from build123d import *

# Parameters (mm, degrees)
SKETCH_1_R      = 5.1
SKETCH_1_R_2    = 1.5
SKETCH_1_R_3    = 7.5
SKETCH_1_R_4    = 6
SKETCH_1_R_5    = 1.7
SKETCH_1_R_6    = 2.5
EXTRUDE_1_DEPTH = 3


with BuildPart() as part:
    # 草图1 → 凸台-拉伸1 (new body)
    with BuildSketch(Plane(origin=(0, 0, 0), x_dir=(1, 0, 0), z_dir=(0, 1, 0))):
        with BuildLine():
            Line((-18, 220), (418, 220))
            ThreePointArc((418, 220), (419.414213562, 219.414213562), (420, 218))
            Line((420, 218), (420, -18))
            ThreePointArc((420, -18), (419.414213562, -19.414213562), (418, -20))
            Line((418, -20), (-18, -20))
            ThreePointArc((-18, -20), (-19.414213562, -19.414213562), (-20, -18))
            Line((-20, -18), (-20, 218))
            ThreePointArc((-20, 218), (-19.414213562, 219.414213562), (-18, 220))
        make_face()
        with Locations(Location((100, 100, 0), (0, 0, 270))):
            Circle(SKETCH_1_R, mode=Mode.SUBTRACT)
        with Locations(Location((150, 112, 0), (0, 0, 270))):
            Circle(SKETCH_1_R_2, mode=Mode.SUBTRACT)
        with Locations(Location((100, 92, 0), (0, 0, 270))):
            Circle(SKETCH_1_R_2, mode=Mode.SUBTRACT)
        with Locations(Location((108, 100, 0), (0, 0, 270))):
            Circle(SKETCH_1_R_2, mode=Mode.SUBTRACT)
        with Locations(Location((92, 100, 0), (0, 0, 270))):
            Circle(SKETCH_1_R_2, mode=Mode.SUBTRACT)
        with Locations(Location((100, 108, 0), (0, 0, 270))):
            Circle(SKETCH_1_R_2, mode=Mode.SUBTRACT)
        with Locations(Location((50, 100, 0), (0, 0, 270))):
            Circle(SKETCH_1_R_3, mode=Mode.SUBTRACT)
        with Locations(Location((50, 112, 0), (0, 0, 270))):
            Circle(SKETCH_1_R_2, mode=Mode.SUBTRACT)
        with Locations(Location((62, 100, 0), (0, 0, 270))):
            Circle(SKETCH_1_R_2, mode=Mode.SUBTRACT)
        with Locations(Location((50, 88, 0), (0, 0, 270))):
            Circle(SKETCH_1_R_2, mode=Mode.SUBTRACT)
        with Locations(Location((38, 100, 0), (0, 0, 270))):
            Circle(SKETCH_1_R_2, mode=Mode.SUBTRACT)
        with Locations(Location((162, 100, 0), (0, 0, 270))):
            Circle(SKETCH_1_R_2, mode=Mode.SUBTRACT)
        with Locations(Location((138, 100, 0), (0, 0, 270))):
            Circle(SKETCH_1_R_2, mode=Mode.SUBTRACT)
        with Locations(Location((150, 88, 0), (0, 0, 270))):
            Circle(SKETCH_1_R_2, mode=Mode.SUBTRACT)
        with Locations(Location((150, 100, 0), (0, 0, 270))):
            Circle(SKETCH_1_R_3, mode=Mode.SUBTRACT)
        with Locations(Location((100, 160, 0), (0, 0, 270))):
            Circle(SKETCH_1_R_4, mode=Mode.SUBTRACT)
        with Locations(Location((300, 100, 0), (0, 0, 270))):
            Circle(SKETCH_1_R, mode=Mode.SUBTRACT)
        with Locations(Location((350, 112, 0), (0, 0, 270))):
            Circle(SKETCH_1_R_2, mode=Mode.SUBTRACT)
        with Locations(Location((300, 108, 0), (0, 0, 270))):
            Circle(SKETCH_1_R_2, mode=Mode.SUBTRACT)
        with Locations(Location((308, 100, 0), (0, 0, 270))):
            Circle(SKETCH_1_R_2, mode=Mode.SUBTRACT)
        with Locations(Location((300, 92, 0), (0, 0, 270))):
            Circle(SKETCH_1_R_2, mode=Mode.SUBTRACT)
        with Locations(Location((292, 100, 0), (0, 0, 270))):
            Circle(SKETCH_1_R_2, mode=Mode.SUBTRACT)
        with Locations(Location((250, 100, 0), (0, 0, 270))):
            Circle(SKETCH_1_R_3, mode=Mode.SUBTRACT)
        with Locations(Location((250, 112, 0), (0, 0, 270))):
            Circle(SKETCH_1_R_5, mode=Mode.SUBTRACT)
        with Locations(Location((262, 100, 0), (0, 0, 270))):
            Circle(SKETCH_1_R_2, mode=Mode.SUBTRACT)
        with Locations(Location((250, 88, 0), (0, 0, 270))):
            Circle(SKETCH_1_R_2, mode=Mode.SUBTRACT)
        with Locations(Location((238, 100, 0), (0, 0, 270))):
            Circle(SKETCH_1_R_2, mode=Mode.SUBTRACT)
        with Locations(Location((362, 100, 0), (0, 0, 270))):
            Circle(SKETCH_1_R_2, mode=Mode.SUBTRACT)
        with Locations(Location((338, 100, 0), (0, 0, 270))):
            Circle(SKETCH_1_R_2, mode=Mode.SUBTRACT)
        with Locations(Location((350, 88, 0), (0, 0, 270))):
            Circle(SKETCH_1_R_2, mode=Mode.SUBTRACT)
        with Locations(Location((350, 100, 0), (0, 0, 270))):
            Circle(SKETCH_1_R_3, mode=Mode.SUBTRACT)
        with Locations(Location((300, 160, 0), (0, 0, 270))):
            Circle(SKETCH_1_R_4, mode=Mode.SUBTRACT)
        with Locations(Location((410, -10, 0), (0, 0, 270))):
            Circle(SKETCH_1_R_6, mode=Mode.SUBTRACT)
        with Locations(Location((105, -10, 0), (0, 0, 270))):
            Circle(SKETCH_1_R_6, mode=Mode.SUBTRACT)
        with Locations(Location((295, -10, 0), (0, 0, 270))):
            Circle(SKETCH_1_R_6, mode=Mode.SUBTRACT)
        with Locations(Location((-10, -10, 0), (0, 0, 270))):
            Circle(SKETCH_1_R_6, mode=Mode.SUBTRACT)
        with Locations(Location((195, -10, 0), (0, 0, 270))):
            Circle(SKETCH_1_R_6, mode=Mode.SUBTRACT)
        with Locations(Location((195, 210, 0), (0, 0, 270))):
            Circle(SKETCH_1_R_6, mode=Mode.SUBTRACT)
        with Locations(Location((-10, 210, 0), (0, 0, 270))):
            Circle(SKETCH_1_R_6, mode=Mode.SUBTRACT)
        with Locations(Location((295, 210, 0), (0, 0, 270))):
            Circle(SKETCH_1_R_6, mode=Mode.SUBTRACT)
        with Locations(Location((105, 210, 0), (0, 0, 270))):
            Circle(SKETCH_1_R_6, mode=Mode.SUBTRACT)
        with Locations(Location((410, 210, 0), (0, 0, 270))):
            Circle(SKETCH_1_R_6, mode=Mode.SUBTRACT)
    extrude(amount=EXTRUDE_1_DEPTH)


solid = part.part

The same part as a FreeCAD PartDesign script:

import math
import FreeCAD as App
import Part
import Sketcher

V = App.Vector
Q = App.Units.Quantity

doc = App.newDocument("Part")
body = doc.addObject("PartDesign::Body", "Body")

# Sketch on XZ plane
sketch1 = body.newObject("Sketcher::SketchObject", "Sketch")
sketch1.AttachmentSupport = (doc.getObject("XZ_Plane"), [""])
sketch1.MapMode = "FlatFace"
sketch1.addGeometry([
    Part.LineSegment(V(418, -220, 0), V(-18, -220, 0)),  # 0
    Part.ArcOfCircle(Part.Circle(V(-18, -218, 0), V(0, 0, 1), 2), math.radians(-180), math.radians(-90)),  # 1
    Part.LineSegment(V(-20, -218, 0), V(-20, 18, 0)),  # 2
    Part.ArcOfCircle(Part.Circle(V(-18, 18, 0), V(0, 0, 1), 2), math.radians(90), math.radians(180)),  # 3
    Part.LineSegment(V(-18, 20, 0), V(418, 20, 0)),  # 4
    Part.ArcOfCircle(Part.Circle(V(418, 18, 0), V(0, 0, 1), 2), math.radians(0), math.radians(90)),  # 5
    Part.LineSegment(V(420, 18, 0), V(420, -218, 0)),  # 6
    Part.ArcOfCircle(Part.Circle(V(418, -218, 0), V(0, 0, 1), 2), math.radians(-90), math.radians(0)),  # 7
    Part.Circle(V(410, 10, 0), V(0, 0, 1), 2.5),  # 8
    Part.Circle(V(295, 10, 0), V(0, 0, 1), 2.5),  # 9
    Part.Circle(V(350, -88, 0), V(0, 0, 1), 1.5),  # 10
    Part.Circle(V(300, -92, 0), V(0, 0, 1), 1.5),  # 11
    Part.Circle(V(250, -88, 0), V(0, 0, 1), 1.5),  # 12
    Part.Circle(V(195, 10, 0), V(0, 0, 1), 2.5),  # 13
    Part.Circle(V(105, 10, 0), V(0, 0, 1), 2.5),  # 14
    Part.Circle(V(-10, 10, 0), V(0, 0, 1), 2.5),  # 15
    Part.Circle(V(150, -88, 0), V(0, 0, 1), 1.5),  # 16
    Part.Circle(V(100, -92, 0), V(0, 0, 1), 1.5),  # 17
    Part.Circle(V(50, -88, 0), V(0, 0, 1), 1.5),  # 18
    Part.Circle(V(362, -100, 0), V(0, 0, 1), 1.5),  # 19
    Part.Circle(V(350, -100, 0), V(0, 0, 1), 7.5),  # 20
    Part.Circle(V(338, -100, 0), V(0, 0, 1), 1.5),  # 21
    Part.Circle(V(350, -112, 0), V(0, 0, 1), 1.5),  # 22
    Part.Circle(V(308, -100, 0), V(0, 0, 1), 1.5),  # 23
    Part.Circle(V(300, -100, 0), V(0, 0, 1), 5.1),  # 24
    Part.Circle(V(292, -100, 0), V(0, 0, 1), 1.5),  # 25
    Part.Circle(V(300, -108, 0), V(0, 0, 1), 1.5),  # 26
    Part.Circle(V(262, -100, 0), V(0, 0, 1), 1.5),  # 27
    Part.Circle(V(250, -100, 0), V(0, 0, 1), 7.5),  # 28
    Part.Circle(V(238, -100, 0), V(0, 0, 1), 1.5),  # 29
    Part.Circle(V(250, -112, 0), V(0, 0, 1), 1.7),  # 30
    Part.Circle(V(410, -210, 0), V(0, 0, 1), 2.5),  # 31
    Part.Circle(V(300, -160, 0), V(0, 0, 1), 6),  # 32
    Part.Circle(V(295, -210, 0), V(0, 0, 1), 2.5),  # 33
    Part.Circle(V(162, -100, 0), V(0, 0, 1), 1.5),  # 34
    Part.Circle(V(150, -100, 0), V(0, 0, 1), 7.5),  # 35
    Part.Circle(V(150, -112, 0), V(0, 0, 1), 1.5),  # 36
    Part.Circle(V(138, -100, 0), V(0, 0, 1), 1.5),  # 37
    Part.Circle(V(108, -100, 0), V(0, 0, 1), 1.5),  # 38
    Part.Circle(V(100, -100, 0), V(0, 0, 1), 5.1),  # 39
    Part.Circle(V(100, -108, 0), V(0, 0, 1), 1.5),  # 40
    Part.Circle(V(92, -100, 0), V(0, 0, 1), 1.5),  # 41
    Part.Circle(V(62, -100, 0), V(0, 0, 1), 1.5),  # 42
    Part.Circle(V(50, -100, 0), V(0, 0, 1), 7.5),  # 43
    Part.Circle(V(50, -112, 0), V(0, 0, 1), 1.5),  # 44
    Part.Circle(V(38, -100, 0), V(0, 0, 1), 1.5),  # 45
    Part.Circle(V(100, -160, 0), V(0, 0, 1), 6),  # 46
    Part.Circle(V(195, -210, 0), V(0, 0, 1), 2.5),  # 47
    Part.Circle(V(105, -210, 0), V(0, 0, 1), 2.5),  # 48
    Part.Circle(V(-10, -210, 0), V(0, 0, 1), 2.5),  # 49
], False)
sketch1.addConstraint([
    Sketcher.Constraint("Tangent", 0, 2, 1, 2),
    Sketcher.Constraint("Tangent", 1, 1, 2, 1),
    Sketcher.Constraint("Tangent", 2, 2, 3, 2),
    Sketcher.Constraint("Tangent", 3, 1, 4, 1),
    Sketcher.Constraint("Tangent", 4, 2, 5, 2),
    Sketcher.Constraint("Tangent", 5, 1, 6, 1),
    Sketcher.Constraint("Tangent", 6, 2, 7, 2),
    Sketcher.Constraint("Tangent", 7, 1, 0, 1),
    Sketcher.Constraint("Horizontal", 0),
    Sketcher.Constraint("Vertical", 2),
    Sketcher.Constraint("Horizontal", 4),
    Sketcher.Constraint("Vertical", 6),
    Sketcher.Constraint("Equal", 1, 3),
    Sketcher.Constraint("Equal", 3, 5),
    Sketcher.Constraint("Equal", 5, 7),
    Sketcher.Constraint("Equal", 8, 9),
    Sketcher.Constraint("Equal", 10, 11),
    Sketcher.Constraint("Equal", 11, 12),
    Sketcher.Constraint("Equal", 9, 13),
    Sketcher.Constraint("Equal", 13, 14),
    Sketcher.Constraint("Equal", 14, 15),
    Sketcher.Constraint("Equal", 12, 16),
    Sketcher.Constraint("Equal", 16, 17),
    Sketcher.Constraint("Equal", 17, 18),
    Sketcher.Constraint("Equal", 18, 19),
    Sketcher.Constraint("Equal", 19, 21),
    Sketcher.Constraint("Equal", 21, 22),
    Sketcher.Constraint("Equal", 22, 23),
    Sketcher.Constraint("Equal", 23, 25),
    Sketcher.Constraint("Equal", 25, 26),
    Sketcher.Constraint("Equal", 26, 27),
    Sketcher.Constraint("Equal", 20, 28),
    Sketcher.Constraint("Equal", 27, 29),
    Sketcher.Constraint("Equal", 15, 31),
    Sketcher.Constraint("Equal", 31, 33),
    Sketcher.Constraint("Equal", 29, 34),
    Sketcher.Constraint("Equal", 28, 35),
    Sketcher.Constraint("Equal", 34, 36),
    Sketcher.Constraint("Equal", 36, 37),
    Sketcher.Constraint("Equal", 37, 38),
    Sketcher.Constraint("Equal", 24, 39),
    Sketcher.Constraint("Equal", 38, 40),
    Sketcher.Constraint("Equal", 40, 41),
    Sketcher.Constraint("Equal", 41, 42),
    Sketcher.Constraint("Equal", 35, 43),
    Sketcher.Constraint("Equal", 42, 44),
    Sketcher.Constraint("Equal", 44, 45),
    Sketcher.Constraint("Equal", 32, 46),
    Sketcher.Constraint("Equal", 33, 47),
    Sketcher.Constraint("Equal", 47, 48),
    Sketcher.Constraint("Equal", 48, 49),
    Sketcher.Constraint("Horizontal", 8, 3, 9, 3),
    Sketcher.Constraint("Horizontal", 10, 3, 12, 3),
    Sketcher.Constraint("Horizontal", 9, 3, 13, 3),
    Sketcher.Constraint("Horizontal", 13, 3, 14, 3),
    Sketcher.Constraint("Horizontal", 14, 3, 15, 3),
    Sketcher.Constraint("Horizontal", 12, 3, 16, 3),
    Sketcher.Constraint("Horizontal", 11, 3, 17, 3),
    Sketcher.Constraint("Horizontal", 16, 3, 18, 3),
    Sketcher.Constraint("Horizontal", 19, 3, 20, 3),
    Sketcher.Constraint("Horizontal", 20, 3, 21, 3),
    Sketcher.Constraint("Horizontal", 21, 3, 23, 3),
    Sketcher.Constraint("Horizontal", 23, 3, 24, 3),
    Sketcher.Constraint("Horizontal", 24, 3, 25, 3),
    Sketcher.Constraint("Horizontal", 25, 3, 27, 3),
    Sketcher.Constraint("Horizontal", 27, 3, 28, 3),
    Sketcher.Constraint("Horizontal", 28, 3, 29, 3),
    Sketcher.Constraint("Horizontal", 22, 3, 30, 3),
    Sketcher.Constraint("Horizontal", 31, 3, 33, 3),
    Sketcher.Constraint("Horizontal", 29, 3, 34, 3),
    Sketcher.Constraint("Horizontal", 34, 3, 35, 3),
    Sketcher.Constraint("Horizontal", 30, 3, 36, 3),
    Sketcher.Constraint("Horizontal", 35, 3, 37, 3),
    Sketcher.Constraint("Horizontal", 37, 3, 38, 3),
    Sketcher.Constraint("Horizontal", 38, 3, 39, 3),
    Sketcher.Constraint("Horizontal", 26, 3, 40, 3),
    Sketcher.Constraint("Horizontal", 39, 3, 41, 3),
    Sketcher.Constraint("Horizontal", 41, 3, 42, 3),
    Sketcher.Constraint("Horizontal", 42, 3, 43, 3),
    Sketcher.Constraint("Horizontal", 36, 3, 44, 3),
    Sketcher.Constraint("Horizontal", 43, 3, 45, 3),
    Sketcher.Constraint("Horizontal", 32, 3, 46, 3),
    Sketcher.Constraint("Horizontal", 33, 3, 47, 3),
    Sketcher.Constraint("Horizontal", 47, 3, 48, 3),
    Sketcher.Constraint("Horizontal", 48, 3, 49, 3),
    Sketcher.Constraint("Vertical", 10, 3, 20, 3),
    Sketcher.Constraint("Vertical", 20, 3, 22, 3),
    Sketcher.Constraint("Vertical", 11, 3, 24, 3),
    Sketcher.Constraint("Vertical", 24, 3, 26, 3),
    Sketcher.Constraint("Vertical", 12, 3, 28, 3),
    Sketcher.Constraint("Vertical", 28, 3, 30, 3),
    Sketcher.Constraint("Vertical", 8, 3, 31, 3),
    Sketcher.Constraint("Vertical", 26, 3, 32, 3),
    Sketcher.Constraint("Vertical", 9, 3, 33, 3),
    Sketcher.Constraint("Vertical", 16, 3, 35, 3),
    Sketcher.Constraint("Vertical", 35, 3, 36, 3),
    Sketcher.Constraint("Vertical", 17, 3, 39, 3),
    Sketcher.Constraint("Vertical", 39, 3, 40, 3),
    Sketcher.Constraint("Vertical", 18, 3, 43, 3),
    Sketcher.Constraint("Vertical", 43, 3, 44, 3),
    Sketcher.Constraint("Vertical", 40, 3, 46, 3),
    Sketcher.Constraint("Vertical", 13, 3, 47, 3),
    Sketcher.Constraint("Vertical", 14, 3, 48, 3),
    Sketcher.Constraint("Vertical", 15, 3, 49, 3),
    Sketcher.Constraint("Diameter", 8, Q("5 mm")),
    Sketcher.Constraint("Diameter", 10, Q("3 mm")),
    Sketcher.Constraint("Diameter", 20, Q("15 mm")),
    Sketcher.Constraint("Diameter", 32, Q("12 mm")),
    Sketcher.Constraint("Radius", 1, Q("2 mm")),
    Sketcher.Constraint("Diameter", 24, Q("10.2 mm")),
    Sketcher.Constraint("Diameter", 30, Q("3.4 mm")),
    Sketcher.Constraint("DistanceX", 0, 2, 0, 1, Q("436 mm")),
    Sketcher.Constraint("DistanceY", 2, 1, 2, 2, Q("236 mm")),
    Sketcher.Constraint("DistanceX", 1, 3, -1, 1, Q("18 mm")),
    Sketcher.Constraint("DistanceY", 1, 3, -1, 1, Q("218 mm")),
    Sketcher.Constraint("DistanceX", -1, 1, 8, 3, Q("410 mm")),
    Sketcher.Constraint("DistanceY", -1, 1, 8, 3, Q("10 mm")),
    Sketcher.Constraint("DistanceX", -1, 1, 9, 3, Q("295 mm")),
    Sketcher.Constraint("DistanceX", -1, 1, 10, 3, Q("350 mm")),
    Sketcher.Constraint("DistanceY", 10, 3, -1, 1, Q("88 mm")),
    Sketcher.Constraint("DistanceX", -1, 1, 11, 3, Q("300 mm")),
    Sketcher.Constraint("DistanceY", 11, 3, -1, 1, Q("92 mm")),
    Sketcher.Constraint("DistanceX", -1, 1, 12, 3, Q("250 mm")),
    Sketcher.Constraint("DistanceX", -1, 1, 13, 3, Q("195 mm")),
    Sketcher.Constraint("DistanceX", -1, 1, 14, 3, Q("105 mm")),
    Sketcher.Constraint("DistanceX", 15, 3, -1, 1, Q("10 mm")),
    Sketcher.Constraint("DistanceX", -1, 1, 16, 3, Q("150 mm")),
    Sketcher.Constraint("DistanceX", -1, 1, 17, 3, Q("100 mm")),
    Sketcher.Constraint("DistanceX", -1, 1, 18, 3, Q("50 mm")),
    Sketcher.Constraint("DistanceX", -1, 1, 19, 3, Q("362 mm")),
    Sketcher.Constraint("DistanceY", 19, 3, -1, 1, Q("100 mm")),
    Sketcher.Constraint("DistanceX", -1, 1, 21, 3, Q("338 mm")),
    Sketcher.Constraint("DistanceY", 22, 3, -1, 1, Q("112 mm")),
    Sketcher.Constraint("DistanceX", -1, 1, 23, 3, Q("308 mm")),
    Sketcher.Constraint("DistanceX", -1, 1, 25, 3, Q("292 mm")),
    Sketcher.Constraint("DistanceY", 26, 3, -1, 1, Q("108 mm")),
    Sketcher.Constraint("DistanceX", -1, 1, 27, 3, Q("262 mm")),
    Sketcher.Constraint("DistanceX", -1, 1, 29, 3, Q("238 mm")),
    Sketcher.Constraint("DistanceY", 31, 3, -1, 1, Q("210 mm")),
    Sketcher.Constraint("DistanceY", 32, 3, -1, 1, Q("160 mm")),
    Sketcher.Constraint("DistanceX", -1, 1, 34, 3, Q("162 mm")),
    Sketcher.Constraint("DistanceX", -1, 1, 37, 3, Q("138 mm")),
    Sketcher.Constraint("DistanceX", -1, 1, 38, 3, Q("108 mm")),
    Sketcher.Constraint("DistanceX", -1, 1, 41, 3, Q("92 mm")),
    Sketcher.Constraint("DistanceX", -1, 1, 42, 3, Q("62 mm")),
    Sketcher.Constraint("DistanceX", -1, 1, 45, 3, Q("38 mm")),
])
pad1 = body.newObject("PartDesign::Pad", "Pad")
pad1.Profile = sketch1
pad1.Length = 3
pad1.Reversed = True

doc.recompute()
